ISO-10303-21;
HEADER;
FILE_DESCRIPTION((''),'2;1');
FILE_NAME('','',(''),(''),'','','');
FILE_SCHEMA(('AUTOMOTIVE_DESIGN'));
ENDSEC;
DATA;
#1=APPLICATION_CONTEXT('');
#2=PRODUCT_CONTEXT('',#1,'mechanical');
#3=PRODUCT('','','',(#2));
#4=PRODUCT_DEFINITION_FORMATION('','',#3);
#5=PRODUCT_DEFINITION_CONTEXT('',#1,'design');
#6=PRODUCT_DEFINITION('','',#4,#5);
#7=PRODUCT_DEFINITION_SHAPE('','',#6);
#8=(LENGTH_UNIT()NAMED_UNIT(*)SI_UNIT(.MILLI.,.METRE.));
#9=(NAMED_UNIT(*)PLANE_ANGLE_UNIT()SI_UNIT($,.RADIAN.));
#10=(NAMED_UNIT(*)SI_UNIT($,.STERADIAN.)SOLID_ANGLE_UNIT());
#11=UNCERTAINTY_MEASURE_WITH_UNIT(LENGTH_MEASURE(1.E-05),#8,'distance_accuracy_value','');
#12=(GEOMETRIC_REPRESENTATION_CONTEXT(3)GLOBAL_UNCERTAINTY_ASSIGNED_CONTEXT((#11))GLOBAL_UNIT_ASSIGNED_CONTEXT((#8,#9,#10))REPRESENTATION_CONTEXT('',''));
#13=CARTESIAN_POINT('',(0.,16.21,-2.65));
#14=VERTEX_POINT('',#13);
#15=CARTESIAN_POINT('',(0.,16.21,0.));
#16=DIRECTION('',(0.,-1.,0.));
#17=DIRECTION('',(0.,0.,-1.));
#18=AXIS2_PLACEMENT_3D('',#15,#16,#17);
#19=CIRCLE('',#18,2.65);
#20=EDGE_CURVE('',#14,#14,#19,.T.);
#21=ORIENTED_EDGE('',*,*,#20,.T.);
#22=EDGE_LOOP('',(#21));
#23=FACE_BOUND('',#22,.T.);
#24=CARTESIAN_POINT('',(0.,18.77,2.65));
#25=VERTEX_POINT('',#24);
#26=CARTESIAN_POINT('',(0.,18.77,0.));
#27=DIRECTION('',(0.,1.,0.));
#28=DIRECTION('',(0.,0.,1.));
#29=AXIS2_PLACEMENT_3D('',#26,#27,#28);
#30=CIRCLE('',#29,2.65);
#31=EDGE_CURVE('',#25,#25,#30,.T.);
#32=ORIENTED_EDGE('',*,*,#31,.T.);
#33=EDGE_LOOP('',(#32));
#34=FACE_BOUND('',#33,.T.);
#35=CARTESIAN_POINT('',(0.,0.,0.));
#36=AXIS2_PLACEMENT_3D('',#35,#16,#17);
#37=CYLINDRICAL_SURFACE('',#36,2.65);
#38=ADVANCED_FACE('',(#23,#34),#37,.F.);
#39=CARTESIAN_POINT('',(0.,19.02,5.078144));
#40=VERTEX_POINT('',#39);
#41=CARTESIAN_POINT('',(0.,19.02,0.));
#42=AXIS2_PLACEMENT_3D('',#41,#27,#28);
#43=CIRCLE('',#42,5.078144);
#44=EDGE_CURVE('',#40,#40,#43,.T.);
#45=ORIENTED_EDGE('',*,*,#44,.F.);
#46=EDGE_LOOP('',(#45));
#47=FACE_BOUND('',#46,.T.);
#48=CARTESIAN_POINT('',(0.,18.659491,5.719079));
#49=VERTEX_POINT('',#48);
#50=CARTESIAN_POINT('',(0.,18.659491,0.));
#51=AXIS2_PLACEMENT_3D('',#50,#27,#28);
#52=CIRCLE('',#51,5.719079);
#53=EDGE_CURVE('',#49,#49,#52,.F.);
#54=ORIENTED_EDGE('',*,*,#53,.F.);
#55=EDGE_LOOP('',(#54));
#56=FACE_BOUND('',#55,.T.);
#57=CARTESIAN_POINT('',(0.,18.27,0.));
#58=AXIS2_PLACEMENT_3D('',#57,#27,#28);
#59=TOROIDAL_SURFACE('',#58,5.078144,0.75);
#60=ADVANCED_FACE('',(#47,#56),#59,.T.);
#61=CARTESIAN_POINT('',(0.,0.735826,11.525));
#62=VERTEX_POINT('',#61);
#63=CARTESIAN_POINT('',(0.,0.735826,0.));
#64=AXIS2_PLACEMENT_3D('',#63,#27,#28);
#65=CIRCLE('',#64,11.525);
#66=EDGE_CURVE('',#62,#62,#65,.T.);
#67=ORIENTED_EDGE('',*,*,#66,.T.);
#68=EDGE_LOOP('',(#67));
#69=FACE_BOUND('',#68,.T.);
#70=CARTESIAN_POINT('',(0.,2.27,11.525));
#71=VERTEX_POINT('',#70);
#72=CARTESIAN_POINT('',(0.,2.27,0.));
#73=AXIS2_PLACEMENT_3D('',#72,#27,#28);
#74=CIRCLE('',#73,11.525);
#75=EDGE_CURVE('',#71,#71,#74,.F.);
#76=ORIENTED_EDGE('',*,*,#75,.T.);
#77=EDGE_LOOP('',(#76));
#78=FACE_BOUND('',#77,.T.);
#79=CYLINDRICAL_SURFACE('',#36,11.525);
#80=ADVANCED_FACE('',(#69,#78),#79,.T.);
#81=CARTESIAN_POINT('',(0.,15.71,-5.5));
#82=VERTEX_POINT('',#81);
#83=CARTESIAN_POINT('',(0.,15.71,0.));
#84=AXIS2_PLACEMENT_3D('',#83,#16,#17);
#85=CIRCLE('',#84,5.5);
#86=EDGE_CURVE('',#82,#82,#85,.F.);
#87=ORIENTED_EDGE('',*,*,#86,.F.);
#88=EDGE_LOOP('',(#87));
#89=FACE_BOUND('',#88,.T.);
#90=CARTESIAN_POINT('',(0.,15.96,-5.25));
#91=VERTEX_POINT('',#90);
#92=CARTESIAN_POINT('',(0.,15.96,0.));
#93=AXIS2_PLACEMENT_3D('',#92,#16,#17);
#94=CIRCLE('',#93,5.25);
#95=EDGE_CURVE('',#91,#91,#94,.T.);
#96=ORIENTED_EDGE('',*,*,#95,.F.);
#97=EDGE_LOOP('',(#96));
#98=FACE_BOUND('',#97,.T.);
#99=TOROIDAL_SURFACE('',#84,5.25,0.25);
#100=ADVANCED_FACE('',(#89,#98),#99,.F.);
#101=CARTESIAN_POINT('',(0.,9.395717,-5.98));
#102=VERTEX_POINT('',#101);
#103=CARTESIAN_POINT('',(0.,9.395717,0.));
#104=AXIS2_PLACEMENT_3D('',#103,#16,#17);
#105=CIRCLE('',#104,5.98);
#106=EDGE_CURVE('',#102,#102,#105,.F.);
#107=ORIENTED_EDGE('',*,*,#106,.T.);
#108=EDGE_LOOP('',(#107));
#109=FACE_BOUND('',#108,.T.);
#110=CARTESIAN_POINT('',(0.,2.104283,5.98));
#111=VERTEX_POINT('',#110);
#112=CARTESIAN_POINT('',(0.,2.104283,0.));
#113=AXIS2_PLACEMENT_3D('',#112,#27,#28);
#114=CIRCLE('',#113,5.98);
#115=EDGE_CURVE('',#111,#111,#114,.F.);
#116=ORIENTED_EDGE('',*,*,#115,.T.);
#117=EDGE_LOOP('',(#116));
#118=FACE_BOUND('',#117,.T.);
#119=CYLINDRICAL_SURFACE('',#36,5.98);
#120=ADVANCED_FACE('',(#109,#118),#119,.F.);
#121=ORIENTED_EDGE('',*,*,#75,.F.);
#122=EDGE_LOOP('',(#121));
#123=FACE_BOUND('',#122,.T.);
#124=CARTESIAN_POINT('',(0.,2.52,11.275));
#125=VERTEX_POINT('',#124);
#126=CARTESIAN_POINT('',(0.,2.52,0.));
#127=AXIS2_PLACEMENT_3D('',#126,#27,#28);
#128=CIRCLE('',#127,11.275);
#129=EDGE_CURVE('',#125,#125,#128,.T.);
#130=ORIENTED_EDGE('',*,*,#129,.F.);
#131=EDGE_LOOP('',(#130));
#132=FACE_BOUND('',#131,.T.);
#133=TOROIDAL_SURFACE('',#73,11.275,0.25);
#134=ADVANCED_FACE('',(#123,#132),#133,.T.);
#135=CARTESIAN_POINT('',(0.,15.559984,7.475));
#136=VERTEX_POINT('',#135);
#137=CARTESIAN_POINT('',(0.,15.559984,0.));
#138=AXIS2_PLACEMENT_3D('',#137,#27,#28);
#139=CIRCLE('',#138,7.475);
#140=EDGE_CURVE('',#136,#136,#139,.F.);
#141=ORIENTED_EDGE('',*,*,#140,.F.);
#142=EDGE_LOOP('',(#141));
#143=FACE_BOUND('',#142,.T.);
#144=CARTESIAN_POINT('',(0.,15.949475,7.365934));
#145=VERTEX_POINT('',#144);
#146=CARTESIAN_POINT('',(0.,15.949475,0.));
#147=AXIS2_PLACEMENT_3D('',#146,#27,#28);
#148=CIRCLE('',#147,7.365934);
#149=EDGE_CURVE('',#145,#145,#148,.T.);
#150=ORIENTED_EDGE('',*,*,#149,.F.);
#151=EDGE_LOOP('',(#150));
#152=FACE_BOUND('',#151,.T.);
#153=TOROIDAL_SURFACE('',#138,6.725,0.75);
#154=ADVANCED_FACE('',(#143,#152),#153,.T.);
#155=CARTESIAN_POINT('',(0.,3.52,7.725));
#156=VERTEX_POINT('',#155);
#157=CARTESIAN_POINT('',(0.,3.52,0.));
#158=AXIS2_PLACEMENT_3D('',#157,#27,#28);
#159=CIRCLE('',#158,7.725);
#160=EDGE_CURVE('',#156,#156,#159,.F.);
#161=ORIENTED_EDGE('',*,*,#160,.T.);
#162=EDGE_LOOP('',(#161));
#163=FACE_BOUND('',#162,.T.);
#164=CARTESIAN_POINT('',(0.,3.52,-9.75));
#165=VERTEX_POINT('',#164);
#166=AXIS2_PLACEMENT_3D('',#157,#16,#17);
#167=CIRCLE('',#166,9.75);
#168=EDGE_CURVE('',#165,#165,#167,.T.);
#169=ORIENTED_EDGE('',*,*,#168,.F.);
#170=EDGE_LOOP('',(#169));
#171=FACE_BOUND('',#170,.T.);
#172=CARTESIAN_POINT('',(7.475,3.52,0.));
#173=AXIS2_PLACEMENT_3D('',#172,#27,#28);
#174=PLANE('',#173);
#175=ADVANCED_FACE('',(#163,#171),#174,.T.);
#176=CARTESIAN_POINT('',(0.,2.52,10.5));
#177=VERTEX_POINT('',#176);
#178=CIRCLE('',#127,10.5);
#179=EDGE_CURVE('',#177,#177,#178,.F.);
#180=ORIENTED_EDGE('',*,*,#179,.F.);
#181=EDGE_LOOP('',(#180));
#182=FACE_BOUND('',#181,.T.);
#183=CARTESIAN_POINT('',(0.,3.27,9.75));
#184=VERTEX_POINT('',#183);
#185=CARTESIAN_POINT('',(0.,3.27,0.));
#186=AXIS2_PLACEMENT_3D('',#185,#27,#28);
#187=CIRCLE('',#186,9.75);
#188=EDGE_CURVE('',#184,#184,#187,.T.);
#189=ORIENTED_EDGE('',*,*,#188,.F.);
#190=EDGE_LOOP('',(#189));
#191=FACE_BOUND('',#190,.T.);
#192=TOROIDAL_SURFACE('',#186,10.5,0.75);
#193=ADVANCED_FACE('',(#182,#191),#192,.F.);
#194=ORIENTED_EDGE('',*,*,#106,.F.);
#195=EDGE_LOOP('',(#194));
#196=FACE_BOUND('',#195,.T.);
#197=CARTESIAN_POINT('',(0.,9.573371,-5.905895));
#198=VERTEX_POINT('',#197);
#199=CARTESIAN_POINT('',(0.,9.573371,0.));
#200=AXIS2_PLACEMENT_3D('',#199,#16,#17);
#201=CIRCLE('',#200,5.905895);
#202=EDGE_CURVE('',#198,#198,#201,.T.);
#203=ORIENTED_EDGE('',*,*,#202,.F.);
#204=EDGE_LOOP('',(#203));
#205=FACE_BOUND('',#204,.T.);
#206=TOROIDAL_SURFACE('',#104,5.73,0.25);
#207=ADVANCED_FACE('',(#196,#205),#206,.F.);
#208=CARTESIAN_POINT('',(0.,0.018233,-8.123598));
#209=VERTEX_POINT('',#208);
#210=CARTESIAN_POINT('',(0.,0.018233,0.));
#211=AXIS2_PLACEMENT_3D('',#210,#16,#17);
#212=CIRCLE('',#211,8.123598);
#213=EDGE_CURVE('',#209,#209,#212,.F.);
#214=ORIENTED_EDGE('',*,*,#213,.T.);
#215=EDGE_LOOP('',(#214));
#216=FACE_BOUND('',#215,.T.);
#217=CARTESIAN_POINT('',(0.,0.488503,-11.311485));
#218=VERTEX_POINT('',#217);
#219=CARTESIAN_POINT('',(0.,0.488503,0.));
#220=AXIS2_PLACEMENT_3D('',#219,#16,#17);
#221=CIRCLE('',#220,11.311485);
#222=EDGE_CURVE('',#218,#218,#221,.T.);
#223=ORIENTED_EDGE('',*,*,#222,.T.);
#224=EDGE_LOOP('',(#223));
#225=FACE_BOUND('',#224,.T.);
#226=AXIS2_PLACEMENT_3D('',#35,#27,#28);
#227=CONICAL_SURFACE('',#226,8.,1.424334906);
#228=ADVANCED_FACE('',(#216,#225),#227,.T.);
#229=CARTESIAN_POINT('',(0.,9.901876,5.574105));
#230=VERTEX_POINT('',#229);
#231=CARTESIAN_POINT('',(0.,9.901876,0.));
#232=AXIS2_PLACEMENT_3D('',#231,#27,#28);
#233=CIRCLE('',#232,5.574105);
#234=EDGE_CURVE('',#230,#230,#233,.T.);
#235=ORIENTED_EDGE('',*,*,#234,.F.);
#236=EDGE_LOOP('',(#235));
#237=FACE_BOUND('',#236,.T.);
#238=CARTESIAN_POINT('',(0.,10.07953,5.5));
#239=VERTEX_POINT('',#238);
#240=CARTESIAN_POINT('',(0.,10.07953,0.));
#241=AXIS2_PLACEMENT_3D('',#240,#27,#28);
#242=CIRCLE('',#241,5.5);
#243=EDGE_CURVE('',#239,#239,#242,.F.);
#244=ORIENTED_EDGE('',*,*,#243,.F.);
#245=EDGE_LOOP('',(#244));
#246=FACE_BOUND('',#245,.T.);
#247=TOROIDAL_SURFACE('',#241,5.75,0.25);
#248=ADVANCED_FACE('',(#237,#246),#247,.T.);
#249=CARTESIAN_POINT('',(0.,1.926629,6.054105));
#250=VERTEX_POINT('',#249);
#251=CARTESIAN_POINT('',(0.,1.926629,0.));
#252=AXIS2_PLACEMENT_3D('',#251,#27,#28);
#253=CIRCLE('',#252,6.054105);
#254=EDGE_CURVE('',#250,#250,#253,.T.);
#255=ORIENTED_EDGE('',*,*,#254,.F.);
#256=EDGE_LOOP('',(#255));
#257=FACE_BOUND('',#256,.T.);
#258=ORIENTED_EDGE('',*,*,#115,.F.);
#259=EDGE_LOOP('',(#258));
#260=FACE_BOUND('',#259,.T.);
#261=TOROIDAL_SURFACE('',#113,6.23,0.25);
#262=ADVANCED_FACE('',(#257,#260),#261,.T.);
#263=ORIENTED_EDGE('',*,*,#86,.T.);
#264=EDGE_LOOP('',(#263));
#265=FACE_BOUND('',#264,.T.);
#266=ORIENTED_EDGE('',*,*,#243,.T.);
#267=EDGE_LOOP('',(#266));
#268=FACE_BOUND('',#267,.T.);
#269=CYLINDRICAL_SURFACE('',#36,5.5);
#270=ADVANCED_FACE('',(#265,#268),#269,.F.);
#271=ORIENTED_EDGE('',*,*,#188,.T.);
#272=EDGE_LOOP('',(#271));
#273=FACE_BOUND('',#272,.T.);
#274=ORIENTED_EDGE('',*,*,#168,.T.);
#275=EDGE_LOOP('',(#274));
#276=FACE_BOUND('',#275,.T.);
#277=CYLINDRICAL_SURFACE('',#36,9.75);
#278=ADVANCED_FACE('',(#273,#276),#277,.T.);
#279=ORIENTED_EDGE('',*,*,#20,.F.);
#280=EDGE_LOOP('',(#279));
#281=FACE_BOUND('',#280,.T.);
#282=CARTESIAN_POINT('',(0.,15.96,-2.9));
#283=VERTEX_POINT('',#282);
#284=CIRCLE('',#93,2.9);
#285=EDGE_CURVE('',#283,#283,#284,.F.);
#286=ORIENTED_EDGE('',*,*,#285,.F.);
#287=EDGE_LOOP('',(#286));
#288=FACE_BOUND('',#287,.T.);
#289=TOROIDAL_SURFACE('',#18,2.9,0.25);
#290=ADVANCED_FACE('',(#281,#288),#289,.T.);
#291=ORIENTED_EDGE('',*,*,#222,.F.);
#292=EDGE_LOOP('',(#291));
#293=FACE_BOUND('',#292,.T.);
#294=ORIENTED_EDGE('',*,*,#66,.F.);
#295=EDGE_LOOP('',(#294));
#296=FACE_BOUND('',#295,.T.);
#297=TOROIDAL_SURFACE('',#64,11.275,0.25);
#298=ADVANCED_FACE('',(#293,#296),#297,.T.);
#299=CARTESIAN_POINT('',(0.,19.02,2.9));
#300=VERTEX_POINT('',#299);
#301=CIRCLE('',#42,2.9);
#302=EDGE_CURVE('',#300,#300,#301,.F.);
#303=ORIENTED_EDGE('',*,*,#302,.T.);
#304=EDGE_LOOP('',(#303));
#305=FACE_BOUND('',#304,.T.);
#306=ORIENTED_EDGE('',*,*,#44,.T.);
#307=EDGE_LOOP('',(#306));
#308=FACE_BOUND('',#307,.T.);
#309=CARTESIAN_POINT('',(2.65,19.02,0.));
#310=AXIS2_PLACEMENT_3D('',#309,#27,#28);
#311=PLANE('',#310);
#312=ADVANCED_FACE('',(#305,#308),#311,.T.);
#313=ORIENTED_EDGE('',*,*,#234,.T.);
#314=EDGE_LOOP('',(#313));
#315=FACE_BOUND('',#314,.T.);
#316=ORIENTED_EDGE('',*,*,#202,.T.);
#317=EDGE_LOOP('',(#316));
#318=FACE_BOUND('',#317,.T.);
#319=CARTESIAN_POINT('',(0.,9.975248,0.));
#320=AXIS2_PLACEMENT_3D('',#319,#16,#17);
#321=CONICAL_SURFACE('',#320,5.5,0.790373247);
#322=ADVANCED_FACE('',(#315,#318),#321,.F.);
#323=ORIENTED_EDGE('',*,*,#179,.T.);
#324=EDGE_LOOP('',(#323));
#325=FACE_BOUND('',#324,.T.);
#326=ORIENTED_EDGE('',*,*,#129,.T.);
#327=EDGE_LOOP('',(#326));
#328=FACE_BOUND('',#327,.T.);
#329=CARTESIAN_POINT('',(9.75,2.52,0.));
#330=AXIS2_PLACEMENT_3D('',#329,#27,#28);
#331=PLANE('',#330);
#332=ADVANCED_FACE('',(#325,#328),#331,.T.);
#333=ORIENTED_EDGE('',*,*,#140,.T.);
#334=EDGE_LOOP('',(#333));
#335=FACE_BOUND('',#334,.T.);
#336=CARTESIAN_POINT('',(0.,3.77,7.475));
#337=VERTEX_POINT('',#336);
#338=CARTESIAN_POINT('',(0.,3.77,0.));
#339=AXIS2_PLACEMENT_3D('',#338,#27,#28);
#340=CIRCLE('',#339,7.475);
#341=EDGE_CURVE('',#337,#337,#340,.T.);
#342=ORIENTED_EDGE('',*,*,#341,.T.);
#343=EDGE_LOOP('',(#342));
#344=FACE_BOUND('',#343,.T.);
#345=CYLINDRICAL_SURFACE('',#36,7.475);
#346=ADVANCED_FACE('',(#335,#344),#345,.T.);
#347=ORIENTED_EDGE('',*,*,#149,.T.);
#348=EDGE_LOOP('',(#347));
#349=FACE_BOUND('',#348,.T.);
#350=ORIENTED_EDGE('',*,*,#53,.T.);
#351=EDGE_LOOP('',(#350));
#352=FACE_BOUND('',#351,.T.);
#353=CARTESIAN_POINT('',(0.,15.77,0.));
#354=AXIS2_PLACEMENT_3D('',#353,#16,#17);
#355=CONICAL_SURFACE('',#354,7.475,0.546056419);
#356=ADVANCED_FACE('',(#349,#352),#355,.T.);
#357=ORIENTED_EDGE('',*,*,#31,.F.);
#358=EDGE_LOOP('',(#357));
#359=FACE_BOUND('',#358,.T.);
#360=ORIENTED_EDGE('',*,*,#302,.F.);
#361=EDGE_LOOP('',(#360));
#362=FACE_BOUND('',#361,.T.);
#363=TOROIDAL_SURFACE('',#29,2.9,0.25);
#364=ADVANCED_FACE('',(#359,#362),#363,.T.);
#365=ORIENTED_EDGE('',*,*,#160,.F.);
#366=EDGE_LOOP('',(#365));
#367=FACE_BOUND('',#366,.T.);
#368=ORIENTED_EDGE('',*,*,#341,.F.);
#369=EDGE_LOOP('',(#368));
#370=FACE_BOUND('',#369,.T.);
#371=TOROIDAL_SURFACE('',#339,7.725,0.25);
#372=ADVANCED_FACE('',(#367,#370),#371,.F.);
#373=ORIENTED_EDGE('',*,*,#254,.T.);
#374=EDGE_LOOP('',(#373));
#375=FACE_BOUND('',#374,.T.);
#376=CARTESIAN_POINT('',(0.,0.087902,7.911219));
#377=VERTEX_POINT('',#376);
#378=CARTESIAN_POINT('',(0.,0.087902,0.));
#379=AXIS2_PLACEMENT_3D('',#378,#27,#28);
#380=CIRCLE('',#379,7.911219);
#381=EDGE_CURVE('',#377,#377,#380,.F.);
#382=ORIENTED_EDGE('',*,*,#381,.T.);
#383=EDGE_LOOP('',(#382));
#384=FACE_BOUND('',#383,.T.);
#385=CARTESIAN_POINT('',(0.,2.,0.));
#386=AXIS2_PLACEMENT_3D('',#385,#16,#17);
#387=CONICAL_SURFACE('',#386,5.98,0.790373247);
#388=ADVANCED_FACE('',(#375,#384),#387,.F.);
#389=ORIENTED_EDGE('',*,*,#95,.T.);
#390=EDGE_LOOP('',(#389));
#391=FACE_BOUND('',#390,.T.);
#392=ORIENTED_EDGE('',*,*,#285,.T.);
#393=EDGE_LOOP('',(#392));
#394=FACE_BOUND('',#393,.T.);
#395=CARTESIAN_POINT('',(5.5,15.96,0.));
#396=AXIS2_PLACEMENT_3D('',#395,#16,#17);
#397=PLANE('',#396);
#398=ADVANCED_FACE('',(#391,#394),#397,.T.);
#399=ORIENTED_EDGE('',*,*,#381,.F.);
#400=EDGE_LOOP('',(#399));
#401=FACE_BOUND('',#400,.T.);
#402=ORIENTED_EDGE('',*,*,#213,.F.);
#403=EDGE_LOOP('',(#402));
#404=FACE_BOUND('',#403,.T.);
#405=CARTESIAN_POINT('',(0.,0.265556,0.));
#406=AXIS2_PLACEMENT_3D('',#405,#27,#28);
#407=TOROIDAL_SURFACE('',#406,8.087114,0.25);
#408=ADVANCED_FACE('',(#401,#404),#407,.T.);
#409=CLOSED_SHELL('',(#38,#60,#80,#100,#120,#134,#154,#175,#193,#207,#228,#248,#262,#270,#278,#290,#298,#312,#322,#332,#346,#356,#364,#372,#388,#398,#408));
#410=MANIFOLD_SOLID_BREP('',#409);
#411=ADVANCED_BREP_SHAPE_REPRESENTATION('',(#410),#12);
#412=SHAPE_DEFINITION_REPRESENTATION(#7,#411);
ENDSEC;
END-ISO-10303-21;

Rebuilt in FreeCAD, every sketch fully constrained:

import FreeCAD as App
import Part
import Sketcher

V = App.Vector
Q = App.Units.Quantity


def edges_at(feature, points):
    """Names of the edges that pass closest to the given points."""
    edges = feature.Shape.Edges
    near = lambda p: min(range(len(edges)), key=lambda i: edges[i].distToShape(Part.Vertex(*p))[0])
    return sorted({f"Edge{near(p) + 1}" for p in points})

doc = App.newDocument("Part")
body = doc.addObject("PartDesign::Body", "Body")

# Sketch on XY plane
sketch1 = body.newObject("Sketcher::SketchObject", "Sketch")
sketch1.AttachmentSupport = (doc.getObject("XY_Plane"), [""])
sketch1.MapMode = "FlatFace"
sketch1.addGeometry(Part.LineSegment(V(5.5, 19.02, 0), V(2.65, 19.02, 0)), False)
sketch1.addGeometry(Part.LineSegment(V(2.65, 19.02, 0), V(2.65, 15.96, 0)), False)
sketch1.addGeometry(Part.LineSegment(V(2.65, 15.96, 0), V(5.5, 15.96, 0)), False)
sketch1.addGeometry(Part.LineSegment(V(5.5, 15.96, 0), V(5.5, 9.975248, 0)), False)
sketch1.addGeometry(Part.LineSegment(V(5.5, 9.975248, 0), V(5.98, 9.5, 0)), False)
sketch1.addGeometry(Part.LineSegment(V(5.98, 9.5, 0), V(5.98, 2, 0)), False)
sketch1.addGeometry(Part.LineSegment(V(5.98, 2, 0), V(8, 0, 0)), False)
sketch1.addGeometry(Part.LineSegment(V(8, 0, 0), V(11.525, 0.52, 0)), False)
sketch1.addGeometry(Part.LineSegment(V(11.525, 0.52, 0), V(11.525, 2.52, 0)), False)
sketch1.addGeometry(Part.LineSegment(V(11.525, 2.52, 0), V(9.75, 2.52, 0)), False)
sketch1.addGeometry(Part.LineSegment(V(9.75, 2.52, 0), V(9.75, 3.52, 0)), False)
sketch1.addGeometry(Part.LineSegment(V(9.75, 3.52, 0), V(7.475, 3.52, 0)), False)
sketch1.addGeometry(Part.LineSegment(V(7.475, 3.52, 0), V(7.475, 15.77, 0)), False)
sketch1.addGeometry(Part.LineSegment(V(7.475, 15.77, 0), V(5.5, 19.02, 0)), False)
sketch1.addConstraint(Sketcher.Constraint("Coincident", 0, 2, 1, 1))
sketch1.addConstraint(Sketcher.Constraint("Coincident", 1, 2, 2, 1))
sketch1.addConstraint(Sketcher.Constraint("Coincident", 2, 2, 3, 1))
sketch1.addConstraint(Sketcher.Constraint("Coincident", 3, 2, 4, 1))
sketch1.addConstraint(Sketcher.Constraint("Coincident", 4, 2, 5, 1))
sketch1.addConstraint(Sketcher.Constraint("Coincident", 5, 2, 6, 1))
sketch1.addConstraint(Sketcher.Constraint("Coincident", 6, 2, 7, 1))
sketch1.addConstraint(Sketcher.Constraint("Coincident", 7, 2, 8, 1))
sketch1.addConstraint(Sketcher.Constraint("Coincident", 8, 2, 9, 1))
sketch1.addConstraint(Sketcher.Constraint("Coincident", 9, 2, 10, 1))
sketch1.addConstraint(Sketcher.Constraint("Coincident", 10, 2, 11, 1))
sketch1.addConstraint(Sketcher.Constraint("Coincident", 11, 2, 12, 1))
sketch1.addConstraint(Sketcher.Constraint("Coincident", 12, 2, 13, 1))
sketch1.addConstraint(Sketcher.Constraint("Coincident", 13, 2, 0, 1))
sketch1.addConstraint(Sketcher.Constraint("Horizontal", 0))
sketch1.addConstraint(Sketcher.Constraint("Vertical", 1))
sketch1.addConstraint(Sketcher.Constraint("Horizontal", 2))
sketch1.addConstraint(Sketcher.Constraint("Vertical", 3))
sketch1.addConstraint(Sketcher.Constraint("Vertical", 5))
sketch1.addConstraint(Sketcher.Constraint("Vertical", 8))
sketch1.addConstraint(Sketcher.Constraint("Horizontal", 9))
sketch1.addConstraint(Sketcher.Constraint("Vertical", 10))
sketch1.addConstraint(Sketcher.Constraint("Horizontal", 11))
sketch1.addConstraint(Sketcher.Constraint("Vertical", 12))
sketch1.addConstraint(Sketcher.Constraint("PointOnObject", 6, 2, -1))
sketch1.addConstraint(Sketcher.Constraint("Parallel", 4, 6))
sketch1.addConstraint(Sketcher.Constraint("Vertical", 3, 2, 13, 2))
sketch1.addConstraint(Sketcher.Constraint("DistanceY", 8, 1, 8, 2, Q("2 mm")))
sketch1.addConstraint(Sketcher.Constraint("DistanceY", 10, 1, 10, 2, Q("1 mm")))
sketch1.addConstraint(Sketcher.Constraint("DistanceY", 5, 2, 5, 1, Q("7.5 mm")))
sketch1.addConstraint(Sketcher.Constraint("DistanceY", -1, 1, 5, 2, Q("2 mm")))
sketch1.addConstraint(Sketcher.Constraint("DistanceX", -1, 1, 6, 2, Q("8 mm")))
sketch1.addConstraint(Sketcher.Constraint("DistanceX", 0, 2, 0, 1, Q("2.85 mm")))
sketch1.addConstraint(Sketcher.Constraint("DistanceY", 1, 2, 1, 1, Q("3.06 mm")))
sketch1.addConstraint(Sketcher.Constraint("DistanceY", 12, 1, 12, 2, Q("12.25 mm")))
sketch1.addConstraint(Sketcher.Constraint("DistanceX", -1, 1, 2, 2, Q("5.5 mm")))
sketch1.addConstraint(Sketcher.Constraint("DistanceX", 9, 2, 9, 1, Q("1.775 mm")))
sketch1.addConstraint(Sketcher.Constraint("DistanceX", 11, 2, 11, 1, Q("2.275 mm")))
sketch1.addConstraint(Sketcher.Constraint("DistanceY", -1, 1, 0, 2, Q("19.02 mm")))
sketch1.addConstraint(Sketcher.Constraint("DistanceX", -1, 1, 4, 2, Q("5.98 mm")))
sketch1.addConstraint(Sketcher.Constraint("DistanceY", -1, 1, 7, 2, Q("0.52 mm")))
sketch1.addConstraint(Sketcher.Constraint("DistanceX", -1, 1, 9, 2, Q("9.75 mm")))
revolution = body.newObject("PartDesign::Revolution", "Revolution")
revolution.Profile = sketch1
revolution.ReferenceAxis = (sketch1, ["V_Axis"])
revolution.Angle = 360
doc.recompute()

fillet = body.newObject("PartDesign::Fillet", "Fillet")
fillet.Base = (revolution, edges_at(revolution, [(0, 2.52, 9.75), (0, 19.02, 5.5), (0, 15.77, 7.475)]))
fillet.Radius = 0.75
doc.recompute()

fillet2 = body.newObject("PartDesign::Fillet", "Fillet001")
fillet2.Base = (fillet, edges_at(fillet, [
    (0, 3.52, 7.475),
    (0, 2.52, 11.525),
    (0, 0.52, 11.525),
    (0, 0, 8),
    (0, 2, 5.98),
    (0, 9.5, 5.98),
    (0, 9.975, 5.5),
    (0, 15.96, 5.5),
    (0, 15.96, 2.65),
    (0, 19.02, 2.65),
]))
fillet2.Radius = 0.25

doc.recompute()
